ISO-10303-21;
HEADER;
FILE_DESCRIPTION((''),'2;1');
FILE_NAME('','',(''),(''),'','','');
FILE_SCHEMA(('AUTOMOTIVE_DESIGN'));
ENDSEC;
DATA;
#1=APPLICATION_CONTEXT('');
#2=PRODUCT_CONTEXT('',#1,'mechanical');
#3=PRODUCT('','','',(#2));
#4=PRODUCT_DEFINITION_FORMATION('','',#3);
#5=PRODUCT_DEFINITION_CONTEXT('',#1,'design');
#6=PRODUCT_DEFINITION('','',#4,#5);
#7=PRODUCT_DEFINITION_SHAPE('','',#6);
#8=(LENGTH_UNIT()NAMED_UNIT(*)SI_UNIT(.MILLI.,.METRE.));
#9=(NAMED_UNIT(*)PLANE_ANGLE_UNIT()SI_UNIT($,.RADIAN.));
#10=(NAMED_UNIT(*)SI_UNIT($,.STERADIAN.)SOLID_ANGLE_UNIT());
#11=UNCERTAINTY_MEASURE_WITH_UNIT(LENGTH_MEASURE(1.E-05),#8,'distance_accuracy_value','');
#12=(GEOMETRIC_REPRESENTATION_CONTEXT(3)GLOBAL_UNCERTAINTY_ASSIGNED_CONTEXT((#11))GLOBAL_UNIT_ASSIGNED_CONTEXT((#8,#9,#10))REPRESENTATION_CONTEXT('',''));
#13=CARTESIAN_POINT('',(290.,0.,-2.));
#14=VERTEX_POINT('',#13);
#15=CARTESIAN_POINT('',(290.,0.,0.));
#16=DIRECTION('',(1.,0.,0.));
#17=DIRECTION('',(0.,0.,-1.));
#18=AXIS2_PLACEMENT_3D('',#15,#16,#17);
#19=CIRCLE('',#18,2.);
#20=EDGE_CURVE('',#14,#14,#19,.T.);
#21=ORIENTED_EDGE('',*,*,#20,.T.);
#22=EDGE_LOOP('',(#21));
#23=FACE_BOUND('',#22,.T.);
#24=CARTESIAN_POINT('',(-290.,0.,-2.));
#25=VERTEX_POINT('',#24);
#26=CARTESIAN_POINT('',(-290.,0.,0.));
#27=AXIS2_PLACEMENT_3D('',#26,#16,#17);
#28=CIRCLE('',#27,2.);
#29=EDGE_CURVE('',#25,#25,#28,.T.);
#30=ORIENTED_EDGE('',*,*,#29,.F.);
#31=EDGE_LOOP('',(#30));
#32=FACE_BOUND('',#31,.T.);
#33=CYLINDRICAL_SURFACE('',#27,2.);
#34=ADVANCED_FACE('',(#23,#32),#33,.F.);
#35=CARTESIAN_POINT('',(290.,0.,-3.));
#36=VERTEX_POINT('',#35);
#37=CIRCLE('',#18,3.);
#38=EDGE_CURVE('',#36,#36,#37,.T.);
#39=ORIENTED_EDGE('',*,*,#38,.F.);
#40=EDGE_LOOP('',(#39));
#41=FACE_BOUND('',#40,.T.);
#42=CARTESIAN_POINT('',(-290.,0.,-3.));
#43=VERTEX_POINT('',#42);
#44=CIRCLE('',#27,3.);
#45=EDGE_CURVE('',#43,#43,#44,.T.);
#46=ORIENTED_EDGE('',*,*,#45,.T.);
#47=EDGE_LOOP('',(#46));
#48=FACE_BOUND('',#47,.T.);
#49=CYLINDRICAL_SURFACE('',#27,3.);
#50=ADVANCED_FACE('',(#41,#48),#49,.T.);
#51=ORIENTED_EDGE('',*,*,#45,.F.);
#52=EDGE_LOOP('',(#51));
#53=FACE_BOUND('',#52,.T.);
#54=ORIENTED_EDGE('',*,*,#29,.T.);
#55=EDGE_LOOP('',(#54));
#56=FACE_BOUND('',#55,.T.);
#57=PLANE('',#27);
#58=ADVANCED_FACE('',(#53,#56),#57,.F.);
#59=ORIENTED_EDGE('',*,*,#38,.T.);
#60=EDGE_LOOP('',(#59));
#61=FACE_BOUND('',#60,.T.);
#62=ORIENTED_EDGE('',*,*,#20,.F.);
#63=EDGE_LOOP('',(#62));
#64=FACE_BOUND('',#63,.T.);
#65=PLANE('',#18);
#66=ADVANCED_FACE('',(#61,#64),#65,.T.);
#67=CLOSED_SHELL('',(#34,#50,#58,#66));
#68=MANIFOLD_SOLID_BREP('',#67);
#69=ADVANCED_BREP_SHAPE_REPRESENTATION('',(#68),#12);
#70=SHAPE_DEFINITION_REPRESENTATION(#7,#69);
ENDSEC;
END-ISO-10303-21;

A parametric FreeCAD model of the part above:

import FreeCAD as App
import Part
import Sketcher
from FreeCAD import Vector

doc = App.newDocument("Part")
body = doc.addObject("PartDesign::Body", "Body")

sketch1 = body.newObject("Sketcher::SketchObject", "Sketch")
sketch1.AttachmentSupport = (doc.getObject("YZ_Plane"), [""])
sketch1.MapMode = "FlatFace"
sketch1.addGeometry(Part.Circle(Vector(0, 0, 0), Vector(0, 0, 1), 3), False)
sketch1.addGeometry(Part.Circle(Vector(0, 0, 0), Vector(0, 0, 1), 2), False)
sketch1.addConstraint(Sketcher.Constraint("Coincident", 0, 3, -1, 1))
sketch1.addConstraint(Sketcher.Constraint("Coincident", 1, 3, -1, 1))
sketch1.addConstraint(Sketcher.Constraint("Diameter", 0, 6.0))
sketch1.addConstraint(Sketcher.Constraint("Diameter", 1, 4.0))
pad1 = body.newObject("PartDesign::Pad", "Pad")
pad1.Profile = sketch1
pad1.Type = "TwoLengths"
pad1.Length = 290
pad1.Length2 = 290

doc.recompute()
